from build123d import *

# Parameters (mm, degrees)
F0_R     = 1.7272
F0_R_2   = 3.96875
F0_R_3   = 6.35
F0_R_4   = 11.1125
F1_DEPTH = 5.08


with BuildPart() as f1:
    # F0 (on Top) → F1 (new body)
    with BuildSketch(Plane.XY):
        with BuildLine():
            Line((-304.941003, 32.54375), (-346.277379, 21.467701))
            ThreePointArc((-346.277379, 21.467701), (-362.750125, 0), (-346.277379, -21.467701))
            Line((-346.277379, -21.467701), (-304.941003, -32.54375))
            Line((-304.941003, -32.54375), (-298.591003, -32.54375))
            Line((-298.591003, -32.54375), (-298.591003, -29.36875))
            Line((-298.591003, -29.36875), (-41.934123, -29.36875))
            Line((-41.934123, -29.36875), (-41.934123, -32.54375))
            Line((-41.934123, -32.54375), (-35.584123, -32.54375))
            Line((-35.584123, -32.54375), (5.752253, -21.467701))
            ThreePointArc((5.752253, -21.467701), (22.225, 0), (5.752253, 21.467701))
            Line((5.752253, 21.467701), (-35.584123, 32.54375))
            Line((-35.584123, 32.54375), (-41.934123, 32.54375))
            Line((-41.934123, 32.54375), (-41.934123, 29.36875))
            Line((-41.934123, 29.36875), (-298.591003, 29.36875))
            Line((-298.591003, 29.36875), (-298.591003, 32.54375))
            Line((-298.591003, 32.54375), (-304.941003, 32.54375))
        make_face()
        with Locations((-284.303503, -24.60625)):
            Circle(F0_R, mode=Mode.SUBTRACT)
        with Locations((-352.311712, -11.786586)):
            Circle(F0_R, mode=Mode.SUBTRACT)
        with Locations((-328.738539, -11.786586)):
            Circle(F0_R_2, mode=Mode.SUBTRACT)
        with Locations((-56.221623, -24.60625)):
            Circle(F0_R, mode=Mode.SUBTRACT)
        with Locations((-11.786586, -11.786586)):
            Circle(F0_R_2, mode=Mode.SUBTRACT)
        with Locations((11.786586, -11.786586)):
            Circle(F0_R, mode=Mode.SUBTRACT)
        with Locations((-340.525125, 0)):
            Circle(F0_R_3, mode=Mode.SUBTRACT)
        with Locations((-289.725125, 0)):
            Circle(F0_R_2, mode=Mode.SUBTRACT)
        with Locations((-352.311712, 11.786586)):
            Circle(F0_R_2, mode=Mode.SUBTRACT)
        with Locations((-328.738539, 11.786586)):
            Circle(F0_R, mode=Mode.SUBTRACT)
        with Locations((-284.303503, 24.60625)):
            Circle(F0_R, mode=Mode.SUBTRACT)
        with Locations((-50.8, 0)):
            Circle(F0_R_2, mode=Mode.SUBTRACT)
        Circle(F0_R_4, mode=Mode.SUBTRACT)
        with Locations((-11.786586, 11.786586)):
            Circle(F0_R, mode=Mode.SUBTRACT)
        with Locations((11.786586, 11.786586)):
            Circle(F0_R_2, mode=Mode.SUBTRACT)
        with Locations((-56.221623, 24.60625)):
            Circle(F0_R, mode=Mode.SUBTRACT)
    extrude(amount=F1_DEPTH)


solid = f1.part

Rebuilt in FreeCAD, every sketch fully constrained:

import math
import FreeCAD as App
import Part
import Sketcher
Q = App.Units.Quantity

doc = App.newDocument("Part")
body = doc.addObject("PartDesign::Body", "Body")

sketch1 = body.newObject("Sketcher::SketchObject", "Sketch")
sketch1.AttachmentSupport = (doc.getObject("XY_Plane"), [""])
sketch1.MapMode = "FlatFace"
sketch1.addGeometry([
    Part.LineSegment(App.Vector(-304.941003, 32.54375, 0), App.Vector(-346.277379, 21.467701, 0)),
    Part.ArcOfCircle(Part.Circle(App.Vector(-340.525125, 0, 0), App.Vector(0, 0, 1), 22.225), math.radians(105.000001), math.radians(254.999999)),
    Part.LineSegment(App.Vector(-346.277379, -21.467701, 0), App.Vector(-304.941003, -32.54375, 0)),
    Part.LineSegment(App.Vector(-304.941003, -32.54375, 0), App.Vector(-298.591003, -32.54375, 0)),
    Part.LineSegment(App.Vector(-298.591003, -32.54375, 0), App.Vector(-298.591003, -29.36875, 0)),
    Part.LineSegment(App.Vector(-298.591003, -29.36875, 0), App.Vector(-41.934123, -29.36875, 0)),
    Part.LineSegment(App.Vector(-41.934123, -29.36875, 0), App.Vector(-41.934123, -32.54375, 0)),
    Part.LineSegment(App.Vector(-41.934123, -32.54375, 0), App.Vector(-35.584123, -32.54375, 0)),
    Part.LineSegment(App.Vector(-35.584123, -32.54375, 0), App.Vector(5.752253, -21.467701, 0)),
    Part.ArcOfCircle(Part.Circle(App.Vector(0.000001, 0, 0), App.Vector(0, 0, 1), 22.224999), math.radians(-75.000002), math.radians(75.000002)),
    Part.LineSegment(App.Vector(5.752253, 21.467701, 0), App.Vector(-35.584123, 32.54375, 0)),
    Part.LineSegment(App.Vector(-35.584123, 32.54375, 0), App.Vector(-41.934123, 32.54375, 0)),
    Part.LineSegment(App.Vector(-41.934123, 32.54375, 0), App.Vector(-41.934123, 29.36875, 0)),
    Part.LineSegment(App.Vector(-41.934123, 29.36875, 0), App.Vector(-298.591003, 29.36875, 0)),
    Part.LineSegment(App.Vector(-298.591003, 29.36875, 0), App.Vector(-298.591003, 32.54375, 0)),
    Part.LineSegment(App.Vector(-298.591003, 32.54375, 0), App.Vector(-304.941003, 32.54375, 0)),
    Part.Circle(App.Vector(-284.303503, -24.60625, 0), App.Vector(0, 0, 1), 1.7272),
    Part.Circle(App.Vector(-352.311712, -11.786586, 0), App.Vector(0, 0, 1), 1.7272),
    Part.Circle(App.Vector(-328.738539, -11.786586, 0), App.Vector(0, 0, 1), 3.96875),
    Part.Circle(App.Vector(-56.221623, -24.60625, 0), App.Vector(0, 0, 1), 1.7272),
    Part.Circle(App.Vector(-11.786586, -11.786586, 0), App.Vector(0, 0, 1), 3.96875),
    Part.Circle(App.Vector(11.786586, -11.786586, 0), App.Vector(0, 0, 1), 1.7272),
    Part.Circle(App.Vector(-340.525125, 0, 0), App.Vector(0, 0, 1), 6.35),
    Part.Circle(App.Vector(-289.725125, 0, 0), App.Vector(0, 0, 1), 3.96875),
    Part.Circle(App.Vector(-352.311712, 11.786586, 0), App.Vector(0, 0, 1), 3.96875),
    Part.Circle(App.Vector(-328.738539, 11.786586, 0), App.Vector(0, 0, 1), 1.7272),
    Part.Circle(App.Vector(-284.303503, 24.60625, 0), App.Vector(0, 0, 1), 1.7272),
    Part.Circle(App.Vector(-50.8, 0, 0), App.Vector(0, 0, 1), 3.96875),
    Part.Circle(App.Vector(0, 0, 0), App.Vector(0, 0, 1), 11.1125),
    Part.Circle(App.Vector(-11.786586, 11.786586, 0), App.Vector(0, 0, 1), 1.7272),
    Part.Circle(App.Vector(11.786586, 11.786586, 0), App.Vector(0, 0, 1), 3.96875),
    Part.Circle(App.Vector(-56.221623, 24.60625, 0), App.Vector(0, 0, 1), 1.7272),
], False)
sketch1.addConstraint([
    Sketcher.Constraint("Tangent", 0, 2, 1, 1),
    Sketcher.Constraint("Tangent", 1, 2, 2, 1),
    Sketcher.Constraint("Coincident", 2, 2, 3, 1),
    Sketcher.Constraint("Coincident", 3, 2, 4, 1),
    Sketcher.Constraint("Coincident", 4, 2, 5, 1),
    Sketcher.Constraint("Coincident", 5, 2, 6, 1),
    Sketcher.Constraint("Coincident", 6, 2, 7, 1),
    Sketcher.Constraint("Coincident", 7, 2, 8, 1),
    Sketcher.Constraint("Tangent", 8, 2, 9, 1),
    Sketcher.Constraint("Tangent", 9, 2, 10, 1),
    Sketcher.Constraint("Coincident", 10, 2, 11, 1),
    Sketcher.Constraint("Coincident", 11, 2, 12, 1),
    Sketcher.Constraint("Coincident", 12, 2, 13, 1),
    Sketcher.Constraint("Coincident", 13, 2, 14, 1),
    Sketcher.Constraint("Coincident", 14, 2, 15, 1),
    Sketcher.Constraint("Coincident", 15, 2, 0, 1),
    Sketcher.Constraint("Horizontal", 3),
    Sketcher.Constraint("Vertical", 4),
    Sketcher.Constraint("Horizontal", 5),
    Sketcher.Constraint("Vertical", 6),
    Sketcher.Constraint("Horizontal", 7),
    Sketcher.Constraint("Horizontal", 11),
    Sketcher.Constraint("Vertical", 12),
    Sketcher.Constraint("Horizontal", 13),
    Sketcher.Constraint("Vertical", 14),
    Sketcher.Constraint("Horizontal", 15),
    Sketcher.Constraint("Coincident", 9, 3, -1, 1),
    Sketcher.Constraint("Coincident", 28, 3, -1, 1),
    Sketcher.Constraint("Coincident", 22, 3, 1, 3),
    Sketcher.Constraint("Equal", 1, 9),
    Sketcher.Constraint("Equal", 16, 17),
    Sketcher.Constraint("Equal", 17, 19),
    Sketcher.Constraint("Equal", 18, 20),
    Sketcher.Constraint("Equal", 19, 21),
    Sketcher.Constraint("Equal", 20, 23),
    Sketcher.Constraint("Equal", 23, 24),
    Sketcher.Constraint("Equal", 21, 25),
    Sketcher.Constraint("Equal", 25, 26),
    Sketcher.Constraint("Equal", 24, 27),
    Sketcher.Constraint("Equal", 26, 29),
    Sketcher.Constraint("Equal", 27, 30),
    Sketcher.Constraint("Equal", 29, 31),
    Sketcher.Constraint("Symmetric", 21, 3, 29, 3, -1, 1),
    Sketcher.Constraint("Symmetric", 20, 3, 30, 3, -1, 1),
    Sketcher.Constraint("Symmetric", 20, 3, 21, 3, -2),
    Sketcher.Constraint("Symmetric", 17, 3, 24, 3, -1),
    Sketcher.Constraint("Symmetric", 18, 3, 25, 3, -1),
    Sketcher.Constraint("Symmetric", 16, 3, 26, 3, -1),
    Sketcher.Constraint("Symmetric", 19, 3, 31, 3, -1),
    Sketcher.Constraint("Symmetric", 0, 2, 1, 2, -1),
    Sketcher.Constraint("Symmetric", 7, 2, 10, 2, -1),
    Sketcher.Constraint("Symmetric", 5, 2, 12, 2, -1),
    Sketcher.Constraint("Symmetric", 3, 2, 14, 2, -1),
    Sketcher.Constraint("PointOnObject", 23, 3, -1),
    Sketcher.Constraint("PointOnObject", 27, 3, -1),
    Sketcher.Constraint("Parallel", 0, 8),
    Sketcher.Constraint("Horizontal", 17, 3, 18, 3),
    Sketcher.Constraint("Horizontal", 16, 3, 19, 3),
    Sketcher.Constraint("Horizontal", 18, 3, 20, 3),
    Sketcher.Constraint("Horizontal", 3, 2, 6, 2),
    Sketcher.Constraint("Equal", 3, 7),
    Sketcher.Constraint("Diameter", 22, Q("0.5 in")),
    Sketcher.Constraint("Diameter", 16, Q("0.136 in")),
    Sketcher.Constraint("Diameter", 18, Q("0.3125 in")),
    Sketcher.Constraint("Diameter", 28, Q("0.875 in")),
    Sketcher.Constraint("DistanceX", 27, 3, -1, 1, Q("2 in")),
    Sketcher.Constraint("Angle", 0, Q("-164.999999 deg")),
    Sketcher.Constraint("Radius", 1, Q("0.875 in")),
    Sketcher.Constraint("DistanceX", 22, 3, 23, 3, Q("2 in")),
    Sketcher.Constraint("DistanceX", 3, 1, 3, 2, Q("0.25 in")),
    Sketcher.Constraint("DistanceY", 4, 1, 4, 2, Q("0.125 in")),
    Sketcher.Constraint("DistanceY", 16, 3, -1, 1, Q("0.96875 in")),
    Sketcher.Constraint("DistanceY", 2, 2, -1, 1, Q("1.28125 in")),
    Sketcher.Constraint("DistanceX", 2, 2, 16, 3, Q("0.8125 in")),
    Sketcher.Constraint("DistanceX", 19, 3, 5, 2, Q("0.5625 in")),
    Sketcher.Constraint("DistanceX", 5, 1, 5, 2, Q("256.65688 mm")),
    Sketcher.Constraint("DistanceX", 17, 3, -1, 1, Q("352.311712 mm")),
    Sketcher.Constraint("DistanceX", 18, 3, -1, 1, Q("328.738539 mm")),
    Sketcher.Constraint("DistanceX", 1, 3, 20, 3, Q("328.738539 mm")),
    Sketcher.Constraint("DistanceY", 17, 3, 24, 3, Q("23.573172 mm")),
])
pad1 = body.newObject("PartDesign::Pad", "Pad")
pad1.Profile = sketch1
pad1.Length = Q("0.2 in")

doc.recompute()
